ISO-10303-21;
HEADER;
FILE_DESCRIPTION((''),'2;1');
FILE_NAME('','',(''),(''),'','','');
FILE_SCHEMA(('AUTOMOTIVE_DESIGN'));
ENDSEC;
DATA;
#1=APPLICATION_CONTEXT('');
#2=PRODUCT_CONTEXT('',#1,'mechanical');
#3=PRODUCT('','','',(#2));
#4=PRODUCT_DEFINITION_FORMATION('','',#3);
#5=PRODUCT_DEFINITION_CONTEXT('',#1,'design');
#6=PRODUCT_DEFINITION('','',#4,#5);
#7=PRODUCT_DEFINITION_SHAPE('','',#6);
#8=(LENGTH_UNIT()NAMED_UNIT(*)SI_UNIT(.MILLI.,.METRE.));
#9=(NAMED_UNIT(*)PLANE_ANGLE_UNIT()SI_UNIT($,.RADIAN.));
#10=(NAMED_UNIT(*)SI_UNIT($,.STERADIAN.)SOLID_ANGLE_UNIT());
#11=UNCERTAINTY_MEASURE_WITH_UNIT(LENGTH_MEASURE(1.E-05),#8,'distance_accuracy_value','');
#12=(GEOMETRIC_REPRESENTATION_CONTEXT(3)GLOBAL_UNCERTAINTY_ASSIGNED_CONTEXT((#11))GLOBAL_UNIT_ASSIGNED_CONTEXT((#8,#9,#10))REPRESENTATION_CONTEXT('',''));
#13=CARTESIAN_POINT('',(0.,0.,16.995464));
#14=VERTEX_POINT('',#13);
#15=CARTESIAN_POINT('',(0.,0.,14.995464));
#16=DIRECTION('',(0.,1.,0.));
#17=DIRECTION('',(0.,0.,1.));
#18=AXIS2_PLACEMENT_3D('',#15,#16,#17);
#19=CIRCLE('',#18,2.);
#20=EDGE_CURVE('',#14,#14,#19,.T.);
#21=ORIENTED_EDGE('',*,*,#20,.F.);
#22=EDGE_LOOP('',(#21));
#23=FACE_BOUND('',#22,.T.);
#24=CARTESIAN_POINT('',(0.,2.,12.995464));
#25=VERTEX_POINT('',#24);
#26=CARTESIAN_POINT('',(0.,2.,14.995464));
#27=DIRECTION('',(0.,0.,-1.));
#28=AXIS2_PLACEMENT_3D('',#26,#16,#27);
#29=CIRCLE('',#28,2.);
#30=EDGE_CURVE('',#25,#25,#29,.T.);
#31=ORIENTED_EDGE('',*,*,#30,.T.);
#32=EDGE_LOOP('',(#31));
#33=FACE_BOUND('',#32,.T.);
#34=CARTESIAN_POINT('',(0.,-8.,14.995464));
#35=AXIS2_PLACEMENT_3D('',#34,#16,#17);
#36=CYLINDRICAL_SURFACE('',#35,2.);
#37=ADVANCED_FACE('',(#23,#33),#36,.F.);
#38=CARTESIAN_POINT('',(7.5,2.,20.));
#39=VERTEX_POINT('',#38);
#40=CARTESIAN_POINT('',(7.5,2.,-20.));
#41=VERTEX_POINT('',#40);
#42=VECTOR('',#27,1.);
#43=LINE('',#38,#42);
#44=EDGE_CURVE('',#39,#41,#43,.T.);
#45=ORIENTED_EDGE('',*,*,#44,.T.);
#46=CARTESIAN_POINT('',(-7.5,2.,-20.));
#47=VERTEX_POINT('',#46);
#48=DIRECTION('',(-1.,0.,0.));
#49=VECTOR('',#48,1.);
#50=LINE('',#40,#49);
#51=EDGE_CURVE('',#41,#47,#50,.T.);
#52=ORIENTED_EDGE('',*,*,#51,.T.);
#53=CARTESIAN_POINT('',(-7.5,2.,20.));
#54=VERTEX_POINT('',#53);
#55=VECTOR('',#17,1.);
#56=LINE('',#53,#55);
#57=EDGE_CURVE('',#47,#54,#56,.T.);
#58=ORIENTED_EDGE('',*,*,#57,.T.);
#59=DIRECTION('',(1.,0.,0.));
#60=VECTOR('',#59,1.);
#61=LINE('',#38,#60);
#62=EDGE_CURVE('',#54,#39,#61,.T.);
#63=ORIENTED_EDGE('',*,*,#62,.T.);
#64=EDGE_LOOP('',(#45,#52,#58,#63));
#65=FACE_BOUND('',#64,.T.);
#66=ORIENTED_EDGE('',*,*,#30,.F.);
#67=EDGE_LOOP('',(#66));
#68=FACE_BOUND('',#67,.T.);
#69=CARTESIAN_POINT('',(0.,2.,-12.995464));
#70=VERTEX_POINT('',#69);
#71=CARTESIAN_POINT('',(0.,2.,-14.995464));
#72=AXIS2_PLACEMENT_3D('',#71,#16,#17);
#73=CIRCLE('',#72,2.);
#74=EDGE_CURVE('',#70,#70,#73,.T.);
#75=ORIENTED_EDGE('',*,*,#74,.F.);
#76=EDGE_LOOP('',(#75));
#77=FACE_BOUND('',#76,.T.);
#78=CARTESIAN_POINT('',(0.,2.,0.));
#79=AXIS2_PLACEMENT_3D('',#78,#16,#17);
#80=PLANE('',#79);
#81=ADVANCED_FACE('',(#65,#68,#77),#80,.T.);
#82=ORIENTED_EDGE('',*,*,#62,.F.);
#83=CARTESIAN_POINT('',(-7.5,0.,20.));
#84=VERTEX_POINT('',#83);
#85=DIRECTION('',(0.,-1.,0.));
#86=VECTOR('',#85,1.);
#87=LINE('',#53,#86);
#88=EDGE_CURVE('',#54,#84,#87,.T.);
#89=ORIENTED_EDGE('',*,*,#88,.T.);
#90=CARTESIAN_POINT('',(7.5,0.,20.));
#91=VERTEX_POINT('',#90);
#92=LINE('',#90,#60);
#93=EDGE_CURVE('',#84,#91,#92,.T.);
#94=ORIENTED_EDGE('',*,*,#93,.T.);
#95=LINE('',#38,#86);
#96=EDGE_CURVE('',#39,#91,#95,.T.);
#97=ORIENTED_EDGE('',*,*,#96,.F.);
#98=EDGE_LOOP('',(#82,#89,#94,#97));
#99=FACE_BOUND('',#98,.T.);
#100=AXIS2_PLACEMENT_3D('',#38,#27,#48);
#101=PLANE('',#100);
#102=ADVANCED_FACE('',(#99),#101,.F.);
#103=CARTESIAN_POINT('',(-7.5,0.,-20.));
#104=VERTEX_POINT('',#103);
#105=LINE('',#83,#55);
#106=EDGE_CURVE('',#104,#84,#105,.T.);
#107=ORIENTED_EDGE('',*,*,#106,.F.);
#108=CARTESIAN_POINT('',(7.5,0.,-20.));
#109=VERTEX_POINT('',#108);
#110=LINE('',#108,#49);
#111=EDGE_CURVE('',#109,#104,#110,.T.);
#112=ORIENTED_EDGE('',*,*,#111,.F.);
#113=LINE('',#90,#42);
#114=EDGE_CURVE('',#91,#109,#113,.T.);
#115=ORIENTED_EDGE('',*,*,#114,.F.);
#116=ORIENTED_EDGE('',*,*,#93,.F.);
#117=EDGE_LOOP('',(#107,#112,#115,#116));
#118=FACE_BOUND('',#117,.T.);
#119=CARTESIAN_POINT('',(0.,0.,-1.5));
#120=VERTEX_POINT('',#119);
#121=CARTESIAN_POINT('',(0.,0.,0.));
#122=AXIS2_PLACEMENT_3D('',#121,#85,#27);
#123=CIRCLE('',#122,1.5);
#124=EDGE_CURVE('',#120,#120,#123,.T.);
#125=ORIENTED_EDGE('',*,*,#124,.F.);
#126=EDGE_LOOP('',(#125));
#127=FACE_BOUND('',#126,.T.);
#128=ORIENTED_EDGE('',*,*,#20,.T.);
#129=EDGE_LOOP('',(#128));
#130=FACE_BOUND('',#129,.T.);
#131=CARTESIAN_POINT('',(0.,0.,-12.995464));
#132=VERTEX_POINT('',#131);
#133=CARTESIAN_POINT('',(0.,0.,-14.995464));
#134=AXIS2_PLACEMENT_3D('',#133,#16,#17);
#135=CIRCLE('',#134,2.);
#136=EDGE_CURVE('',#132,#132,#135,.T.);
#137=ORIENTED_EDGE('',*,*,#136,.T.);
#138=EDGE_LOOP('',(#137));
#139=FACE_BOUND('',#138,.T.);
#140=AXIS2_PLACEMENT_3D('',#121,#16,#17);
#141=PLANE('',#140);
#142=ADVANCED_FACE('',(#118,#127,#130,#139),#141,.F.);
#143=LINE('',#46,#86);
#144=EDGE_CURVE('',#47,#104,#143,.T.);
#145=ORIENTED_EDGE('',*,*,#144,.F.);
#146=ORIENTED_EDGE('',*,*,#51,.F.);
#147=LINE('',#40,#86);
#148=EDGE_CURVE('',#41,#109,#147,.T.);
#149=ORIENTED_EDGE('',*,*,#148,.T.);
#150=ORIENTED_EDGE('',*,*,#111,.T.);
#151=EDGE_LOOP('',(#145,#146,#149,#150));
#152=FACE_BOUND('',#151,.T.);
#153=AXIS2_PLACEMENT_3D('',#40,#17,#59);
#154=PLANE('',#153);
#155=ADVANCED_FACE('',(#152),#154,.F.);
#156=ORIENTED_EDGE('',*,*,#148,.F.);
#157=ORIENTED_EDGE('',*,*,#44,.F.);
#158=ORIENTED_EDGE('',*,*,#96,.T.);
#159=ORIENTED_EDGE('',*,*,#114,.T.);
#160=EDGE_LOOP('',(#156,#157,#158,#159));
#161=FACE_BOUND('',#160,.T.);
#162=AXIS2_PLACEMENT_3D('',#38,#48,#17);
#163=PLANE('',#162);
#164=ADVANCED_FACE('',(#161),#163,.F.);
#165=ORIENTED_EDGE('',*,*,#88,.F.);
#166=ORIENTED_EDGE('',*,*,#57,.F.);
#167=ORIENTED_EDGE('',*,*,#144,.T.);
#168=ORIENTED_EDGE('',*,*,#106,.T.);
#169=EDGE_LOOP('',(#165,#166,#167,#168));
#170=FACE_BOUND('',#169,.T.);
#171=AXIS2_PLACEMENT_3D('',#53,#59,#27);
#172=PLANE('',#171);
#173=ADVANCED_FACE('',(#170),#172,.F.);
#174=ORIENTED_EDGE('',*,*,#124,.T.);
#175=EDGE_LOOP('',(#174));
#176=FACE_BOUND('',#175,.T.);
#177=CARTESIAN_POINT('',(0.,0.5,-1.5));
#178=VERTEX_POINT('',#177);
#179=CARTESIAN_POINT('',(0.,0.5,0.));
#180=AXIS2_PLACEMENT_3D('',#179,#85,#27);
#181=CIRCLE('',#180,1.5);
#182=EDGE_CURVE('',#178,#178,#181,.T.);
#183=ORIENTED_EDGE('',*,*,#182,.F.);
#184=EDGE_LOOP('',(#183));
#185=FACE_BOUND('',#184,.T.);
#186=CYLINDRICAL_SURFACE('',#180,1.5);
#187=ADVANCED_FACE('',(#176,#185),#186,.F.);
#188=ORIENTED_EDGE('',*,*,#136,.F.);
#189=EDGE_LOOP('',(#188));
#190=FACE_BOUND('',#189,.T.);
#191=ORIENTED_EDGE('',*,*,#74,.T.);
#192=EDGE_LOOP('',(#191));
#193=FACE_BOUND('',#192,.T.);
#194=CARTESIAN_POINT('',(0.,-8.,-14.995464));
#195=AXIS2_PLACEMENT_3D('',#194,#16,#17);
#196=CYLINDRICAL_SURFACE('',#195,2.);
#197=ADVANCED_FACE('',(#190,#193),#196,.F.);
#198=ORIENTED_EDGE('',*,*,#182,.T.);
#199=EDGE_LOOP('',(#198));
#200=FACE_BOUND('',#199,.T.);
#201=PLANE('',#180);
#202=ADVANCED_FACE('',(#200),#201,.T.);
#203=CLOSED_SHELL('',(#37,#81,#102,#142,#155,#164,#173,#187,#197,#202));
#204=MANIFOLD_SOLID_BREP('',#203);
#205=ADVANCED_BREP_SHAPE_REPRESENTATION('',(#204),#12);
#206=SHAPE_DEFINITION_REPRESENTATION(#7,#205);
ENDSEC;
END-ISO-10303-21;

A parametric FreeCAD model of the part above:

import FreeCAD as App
import Part
import Sketcher
from FreeCAD import Vector

doc = App.newDocument("Part")
body = doc.addObject("PartDesign::Body", "Body")

# Sketch on XZ plane
sketch1 = body.newObject("Sketcher::SketchObject", "Sketch")
sketch1.AttachmentSupport = (doc.getObject("XZ_Plane"), [""])
sketch1.MapMode = "FlatFace"
sketch1.addGeometry(Part.LineSegment(Vector(-8, -20, 0), Vector(-8, 20, 0)), False)
sketch1.addGeometry(Part.LineSegment(Vector(-8, 20, 0), Vector(8, 20, 0)), False)
sketch1.addGeometry(Part.LineSegment(Vector(8, 20, 0), Vector(8, -20, 0)), False)
sketch1.addGeometry(Part.LineSegment(Vector(8, -20, 0), Vector(-8, -20, 0)), False)
sketch1.addConstraint(Sketcher.Constraint("Coincident", 0, 2, 1, 1))
sketch1.addConstraint(Sketcher.Constraint("Coincident", 1, 2, 2, 1))
sketch1.addConstraint(Sketcher.Constraint("Coincident", 2, 2, 3, 1))
sketch1.addConstraint(Sketcher.Constraint("Coincident", 3, 2, 0, 1))
sketch1.addConstraint(Sketcher.Constraint("Vertical", 0))
sketch1.addConstraint(Sketcher.Constraint("Horizontal", 1))
sketch1.addConstraint(Sketcher.Constraint("Vertical", 2))
sketch1.addConstraint(Sketcher.Constraint("Horizontal", 3))
sketch1.addConstraint(Sketcher.Constraint("Symmetric", 0, 2, 2, 2, -1, 1))
sketch1.addConstraint(Sketcher.Constraint("DistanceX", 1, 1, 1, 2, 15.0))
sketch1.addConstraint(Sketcher.Constraint("DistanceY", 0, 1, 0, 2, 40.0))
pad1 = body.newObject("PartDesign::Pad", "Pad")
pad1.Profile = sketch1
pad1.Length = 2
pad1.Reversed = True

# Sketch on XZ plane
sketch2 = body.newObject("Sketcher::SketchObject", "Sketch001")
sketch2.AttachmentSupport = (doc.getObject("XZ_Plane"), [""])
sketch2.MapMode = "FlatFace"
sketch2.addGeometry(Part.Circle(Vector(0, 0, 0), Vector(0, 0, 1), 1.5), False)
sketch2.addConstraint(Sketcher.Constraint("Coincident", 0, 3, -1, 1))
sketch2.addConstraint(Sketcher.Constraint("Diameter", 0, 3.0))
pocket1 = body.newObject("PartDesign::Pocket", "Pocket")
pocket1.Profile = sketch2
pocket1.Length = 0.5

# Sketch on XZ plane
sketch3 = body.newObject("Sketcher::SketchObject", "Sketch002")
sketch3.AttachmentSupport = (doc.getObject("XZ_Plane"), [""])
sketch3.MapMode = "FlatFace"
sketch3.AttachmentOffset = App.Placement(Vector(0, 0, -2), App.Rotation())
sketch3.addGeometry(Part.Circle(Vector(0, -15, 0), Vector(0, 0, 1), 2), False)
sketch3.addGeometry(Part.Circle(Vector(0, 15, 0), Vector(0, 0, 1), 2), False)
sketch3.addConstraint(Sketcher.Constraint("Equal", 0, 1))
sketch3.addConstraint(Sketcher.Constraint("Symmetric", 0, 3, 1, 3, -1, 1))
sketch3.addConstraint(Sketcher.Constraint("PointOnObject", 0, 3, -2))
sketch3.addConstraint(Sketcher.Constraint("Diameter", 0, 4.0))
sketch3.addConstraint(Sketcher.Constraint("DistanceY", 0, 3, -1, 1, 14.995464))
pocket2 = body.newObject("PartDesign::Pocket", "Pocket001")
pocket2.Profile = sketch3
pocket2.Length = 10
pocket2.Reversed = True

doc.recompute()
